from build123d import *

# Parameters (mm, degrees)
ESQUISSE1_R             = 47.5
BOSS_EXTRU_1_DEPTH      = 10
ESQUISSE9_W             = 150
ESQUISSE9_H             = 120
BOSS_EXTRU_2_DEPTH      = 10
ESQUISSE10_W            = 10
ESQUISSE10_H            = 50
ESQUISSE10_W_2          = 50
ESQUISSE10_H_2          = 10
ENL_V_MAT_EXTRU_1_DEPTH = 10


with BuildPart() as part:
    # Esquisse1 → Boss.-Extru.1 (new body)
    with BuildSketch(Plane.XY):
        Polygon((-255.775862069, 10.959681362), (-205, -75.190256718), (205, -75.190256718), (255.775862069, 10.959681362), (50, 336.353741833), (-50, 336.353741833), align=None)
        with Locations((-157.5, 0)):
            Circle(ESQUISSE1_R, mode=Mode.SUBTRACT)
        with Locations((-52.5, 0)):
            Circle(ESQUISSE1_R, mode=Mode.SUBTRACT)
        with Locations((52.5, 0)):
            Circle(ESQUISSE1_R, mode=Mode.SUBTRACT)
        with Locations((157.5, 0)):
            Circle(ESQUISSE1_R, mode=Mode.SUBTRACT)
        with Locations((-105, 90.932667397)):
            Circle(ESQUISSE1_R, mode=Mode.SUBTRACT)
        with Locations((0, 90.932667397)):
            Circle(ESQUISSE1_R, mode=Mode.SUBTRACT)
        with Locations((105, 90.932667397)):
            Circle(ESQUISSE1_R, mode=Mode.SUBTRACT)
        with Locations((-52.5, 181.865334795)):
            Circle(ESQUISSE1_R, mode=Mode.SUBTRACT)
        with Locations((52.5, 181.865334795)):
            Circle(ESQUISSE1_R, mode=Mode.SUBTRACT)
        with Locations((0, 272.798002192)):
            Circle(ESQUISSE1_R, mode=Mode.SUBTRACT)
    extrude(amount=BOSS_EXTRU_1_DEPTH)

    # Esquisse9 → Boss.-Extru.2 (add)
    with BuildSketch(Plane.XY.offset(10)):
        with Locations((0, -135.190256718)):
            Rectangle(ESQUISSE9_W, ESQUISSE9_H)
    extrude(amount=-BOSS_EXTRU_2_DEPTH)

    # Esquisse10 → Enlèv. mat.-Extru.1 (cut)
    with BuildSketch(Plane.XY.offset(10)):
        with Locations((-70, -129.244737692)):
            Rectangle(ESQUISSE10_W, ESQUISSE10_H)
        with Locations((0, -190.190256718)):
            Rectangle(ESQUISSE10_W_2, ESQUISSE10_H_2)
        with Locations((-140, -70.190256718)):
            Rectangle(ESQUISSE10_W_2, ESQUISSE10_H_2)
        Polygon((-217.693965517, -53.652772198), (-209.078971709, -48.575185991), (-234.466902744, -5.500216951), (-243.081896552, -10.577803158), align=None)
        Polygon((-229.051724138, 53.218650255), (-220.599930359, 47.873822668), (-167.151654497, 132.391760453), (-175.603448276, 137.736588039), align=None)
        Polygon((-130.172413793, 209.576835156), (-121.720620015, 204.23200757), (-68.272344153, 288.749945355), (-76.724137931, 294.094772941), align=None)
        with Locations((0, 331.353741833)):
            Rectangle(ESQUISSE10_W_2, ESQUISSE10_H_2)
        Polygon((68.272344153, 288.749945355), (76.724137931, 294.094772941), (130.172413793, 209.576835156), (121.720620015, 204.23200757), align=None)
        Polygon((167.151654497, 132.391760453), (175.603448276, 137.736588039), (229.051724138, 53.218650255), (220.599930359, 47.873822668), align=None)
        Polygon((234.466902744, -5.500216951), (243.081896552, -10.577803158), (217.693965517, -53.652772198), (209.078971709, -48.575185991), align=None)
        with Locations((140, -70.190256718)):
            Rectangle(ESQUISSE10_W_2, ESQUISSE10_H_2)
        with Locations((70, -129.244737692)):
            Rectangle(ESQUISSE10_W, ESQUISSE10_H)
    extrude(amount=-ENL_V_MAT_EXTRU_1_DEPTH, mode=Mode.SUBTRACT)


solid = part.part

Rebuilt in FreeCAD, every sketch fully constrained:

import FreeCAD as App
import Part
import Sketcher
Q = App.Units.Quantity


def add_polygon(sketch, points):
    """Adds a closed chain of lines whose ends are joined by coincident constraints."""
    first, n = sketch.GeometryCount, len(points)
    for a, b in zip(points, points[1:] + points[:1]):
        sketch.addGeometry(Part.LineSegment(App.Vector(*a, 0), App.Vector(*b, 0)), False)
    for i in range(n):
        sketch.addConstraint(Sketcher.Constraint("Coincident", first + i, 2, first + (i + 1) % n, 1))

doc = App.newDocument("Part")
params = doc.addObject("Spreadsheet::Sheet", "Params")
for row, (alias, value) in enumerate([
    ("sketch1_diameter", "95 mm"),
    ("sketch1_width", "410 mm"),
    ("sketch1_width2", "100 mm"),
    ("sketch1_length", "100 mm"),
    ("sketch1_length2", "385 mm"),
    ("pad1_length", "10 mm"),
    ("sketch2_width", "150 mm"),
    ("sketch2_height", "120 mm"),
    ("pad2_length", "10 mm"),
    ("sketch3_width", "10 mm"),
    ("sketch3_width2", "50 mm"),
    ("sketch3_length", "10 mm"),
    ("sketch3_length2", "50 mm"),
    ("sketch3_length3", "100 mm"),
    ("pocket1_length", "10 mm"),
], start=1):
    params.set(f"A{row}", alias)
    params.set(f"B{row}", "=" + value)
    params.setAlias(f"B{row}", alias)

body = doc.addObject("PartDesign::Body", "Body")

sketch1 = body.newObject("Sketcher::SketchObject", "Sketch")
sketch1.AttachmentSupport = (doc.getObject("XY_Plane"), [""])
sketch1.MapMode = "FlatFace"
add_polygon(sketch1, [(-256, 11), (-205, -75), (205, -75), (256, 11), (50, 336), (-50, 336)])
sketch1.addGeometry(Part.Circle(App.Vector(-158, 0, 0), App.Vector(0, 0, 1), 48), False)
sketch1.addGeometry(Part.Circle(App.Vector(-52, 0, 0), App.Vector(0, 0, 1), 48), False)
sketch1.addGeometry(Part.Circle(App.Vector(-105, 91, 0), App.Vector(0, 0, 1), 48), False)
sketch1.addGeometry(Part.Circle(App.Vector(52, 0, 0), App.Vector(0, 0, 1), 48), False)
sketch1.addGeometry(Part.Circle(App.Vector(158, 0, 0), App.Vector(0, 0, 1), 48), False)
sketch1.addGeometry(Part.Circle(App.Vector(0, 91, 0), App.Vector(0, 0, 1), 48), False)
sketch1.addGeometry(Part.Circle(App.Vector(105, 91, 0), App.Vector(0, 0, 1), 48), False)
sketch1.addGeometry(Part.Circle(App.Vector(-52, 182, 0), App.Vector(0, 0, 1), 48), False)
sketch1.addGeometry(Part.Circle(App.Vector(52, 182, 0), App.Vector(0, 0, 1), 48), False)
sketch1.addGeometry(Part.Circle(App.Vector(0, 273, 0), App.Vector(0, 0, 1), 48), False)
sketch1.addConstraint(Sketcher.Constraint("Horizontal", 1))
sketch1.addConstraint(Sketcher.Constraint("Horizontal", 4))
sketch1.addConstraint(Sketcher.Constraint("Equal", 6, 7))
sketch1.addConstraint(Sketcher.Constraint("Equal", 7, 8))
sketch1.addConstraint(Sketcher.Constraint("Equal", 8, 9))
sketch1.addConstraint(Sketcher.Constraint("Equal", 9, 10))
sketch1.addConstraint(Sketcher.Constraint("Equal", 10, 11))
sketch1.addConstraint(Sketcher.Constraint("Equal", 11, 12))
sketch1.addConstraint(Sketcher.Constraint("Equal", 12, 13))
sketch1.addConstraint(Sketcher.Constraint("Equal", 13, 14))
sketch1.addConstraint(Sketcher.Constraint("Equal", 14, 15))
sketch1.addConstraint(Sketcher.Constraint("Symmetric", 7, 3, 9, 3, -1, 1))
sketch1.addConstraint(Sketcher.Constraint("Symmetric", 6, 3, 10, 3, -1, 1))
sketch1.addConstraint(Sketcher.Constraint("Symmetric", 8, 3, 12, 3, -2))
sketch1.addConstraint(Sketcher.Constraint("Symmetric", 13, 3, 14, 3, -2))
sketch1.addConstraint(Sketcher.Constraint("Symmetric", 2, 2, 5, 2, -2))
sketch1.addConstraint(Sketcher.Constraint("PointOnObject", 6, 3, -1))
sketch1.addConstraint(Sketcher.Constraint("PointOnObject", 7, 3, -1))
sketch1.addConstraint(Sketcher.Constraint("PointOnObject", 11, 3, -2))
sketch1.addConstraint(Sketcher.Constraint("PointOnObject", 15, 3, -2))
sketch1.addConstraint(Sketcher.Constraint("Horizontal", 8, 3, 11, 3))
sketch1.addConstraint(Sketcher.Constraint("Vertical", 7, 3, 13, 3))
sketch1.addConstraint(Sketcher.Constraint("Equal", 0, 2))
sketch1.addConstraint(Sketcher.Constraint("Equal", 3, 5))
sketch1.addConstraint(Sketcher.Constraint("Diameter", 6, Q("95 mm")))
sketch1.addConstraint(Sketcher.Constraint("DistanceX", 1, 1, 1, 2, Q("410 mm")))
sketch1.addConstraint(Sketcher.Constraint("DistanceX", 4, 2, 4, 1, Q("100 mm")))
sketch1.addConstraint(Sketcher.Constraint("Distance", 0, Q("100 mm")))
sketch1.addConstraint(Sketcher.Constraint("Distance", 3, Q("385 mm")))
sketch1.addConstraint(Sketcher.Constraint("DistanceX", 8, 3, -1, 1, Q("105 mm")))
sketch1.addConstraint(Sketcher.Constraint("DistanceX", 6, 3, 7, 3, Q("105 mm")))
sketch1.addConstraint(Sketcher.Constraint("DistanceX", 7, 3, 9, 3, Q("105 mm")))
sketch1.addConstraint(Sketcher.Constraint("DistanceY", -1, 1, 2, 2, Q("10.959681 mm")))
sketch1.addConstraint(Sketcher.Constraint("DistanceY", -1, 1, 3, 2, Q("336.353742 mm")))
sketch1.addConstraint(Sketcher.Constraint("DistanceY", 15, 3, 3, 2, Q("63.55574 mm")))
sketch1.addConstraint(Sketcher.Constraint("DistanceY", -1, 1, 8, 3, Q("90.932667 mm")))
sketch1.addConstraint(Sketcher.Constraint("DistanceY", -1, 1, 13, 3, Q("181.865335 mm")))
sketch1.setExpression("Constraints[30]", "Params.sketch1_diameter")
sketch1.setExpression("Constraints[31]", "Params.sketch1_width")
sketch1.setExpression("Constraints[32]", "Params.sketch1_width2")
sketch1.setExpression("Constraints[33]", "Params.sketch1_length")
sketch1.setExpression("Constraints[34]", "Params.sketch1_length2")
pad1 = body.newObject("PartDesign::Pad", "Pad")
pad1.Profile = sketch1
pad1.setExpression("Length", "Params.pad1_length")

sketch2 = body.newObject("Sketcher::SketchObject", "Sketch001")
sketch2.AttachmentSupport = (doc.getObject("XY_Plane"), [""])
sketch2.MapMode = "FlatFace"
sketch2.AttachmentOffset = App.Placement(App.Vector(0, 0, 10), App.Rotation())
add_polygon(sketch2, [(-75, -75), (-75, -195), (75, -195), (75, -75)])
sketch2.addConstraint(Sketcher.Constraint("Vertical", 0))
sketch2.addConstraint(Sketcher.Constraint("Horizontal", 1))
sketch2.addConstraint(Sketcher.Constraint("Vertical", 2))
sketch2.addConstraint(Sketcher.Constraint("Horizontal", 3))
sketch2.addConstraint(Sketcher.Constraint("DistanceX", 1, 1, 1, 2, Q("150 mm")))
sketch2.addConstraint(Sketcher.Constraint("DistanceY", 0, 2, 0, 1, Q("120 mm")))
sketch2.addConstraint(Sketcher.Constraint("DistanceX", 0, 2, -1, 1, Q("75 mm")))
sketch2.addConstraint(Sketcher.Constraint("DistanceY", 0, 2, -1, 1, Q("195.190257 mm")))
sketch2.setExpression("Constraints[8]", "Params.sketch2_width")
sketch2.setExpression("Constraints[9]", "Params.sketch2_height")
pad2 = body.newObject("PartDesign::Pad", "Pad001")
pad2.Profile = sketch2
pad2.setExpression("Length", "Params.pad2_length")
pad2.Reversed = True

sketch3 = body.newObject("Sketcher::SketchObject", "Sketch002")
sketch3.AttachmentSupport = (doc.getObject("XY_Plane"), [""])
sketch3.MapMode = "FlatFace"
sketch3.AttachmentOffset = App.Placement(App.Vector(0, 0, 10), App.Rotation())
add_polygon(sketch3, [(-75, -104), (-75, -154), (-65, -154), (-65, -104)])
add_polygon(sketch3, [(-25, -185), (-25, -195), (25, -195), (25, -185)])
add_polygon(sketch3, [(-165, -65), (-165, -75), (-115, -75), (-115, -65)])
add_polygon(sketch3, [(-218, -54), (-209, -49), (-234, -6), (-243, -11)])
add_polygon(sketch3, [(-229, 53), (-221, 48), (-167, 132), (-176, 138)])
add_polygon(sketch3, [(-130, 210), (-122, 204), (-68, 289), (-77, 294)])
add_polygon(sketch3, [(-25, 336), (-25, 326), (25, 326), (25, 336)])
add_polygon(sketch3, [(77, 294), (68, 289), (122, 204), (130, 210)])
add_polygon(sketch3, [(176, 138), (167, 132), (221, 48), (229, 53)])
add_polygon(sketch3, [(243, -11), (234, -6), (209, -49), (218, -54)])
add_polygon(sketch3, [(115, -65), (115, -75), (165, -75), (165, -65)])
add_polygon(sketch3, [(65, -104), (65, -154), (75, -154), (75, -104)])
sketch3.addConstraint(Sketcher.Constraint("Vertical", 0))
sketch3.addConstraint(Sketcher.Constraint("Horizontal", 1))
sketch3.addConstraint(Sketcher.Constraint("Vertical", 2))
sketch3.addConstraint(Sketcher.Constraint("Horizontal", 3))
sketch3.addConstraint(Sketcher.Constraint("Vertical", 4))
sketch3.addConstraint(Sketcher.Constraint("Horizontal", 5))
sketch3.addConstraint(Sketcher.Constraint("Vertical", 6))
sketch3.addConstraint(Sketcher.Constraint("Horizontal", 7))
sketch3.addConstraint(Sketcher.Constraint("Vertical", 8))
sketch3.addConstraint(Sketcher.Constraint("Horizontal", 9))
sketch3.addConstraint(Sketcher.Constraint("Vertical", 10))
sketch3.addConstraint(Sketcher.Constraint("Horizontal", 11))
sketch3.addConstraint(Sketcher.Constraint("Vertical", 24))
sketch3.addConstraint(Sketcher.Constraint("Horizontal", 25))
sketch3.addConstraint(Sketcher.Constraint("Vertical", 26))
sketch3.addConstraint(Sketcher.Constraint("Horizontal", 27))
sketch3.addConstraint(Sketcher.Constraint("Vertical", 40))
sketch3.addConstraint(Sketcher.Constraint("Horizontal", 41))
sketch3.addConstraint(Sketcher.Constraint("Vertical", 42))
sketch3.addConstraint(Sketcher.Constraint("Horizontal", 43))
sketch3.addConstraint(Sketcher.Constraint("Vertical", 44))
sketch3.addConstraint(Sketcher.Constraint("Horizontal", 45))
sketch3.addConstraint(Sketcher.Constraint("Vertical", 46))
sketch3.addConstraint(Sketcher.Constraint("Horizontal", 47))
sketch3.addConstraint(Sketcher.Constraint("Symmetric", 21, 2, 28, 2, -2))
sketch3.addConstraint(Sketcher.Constraint("Symmetric", 20, 2, 29, 2, -2))
sketch3.addConstraint(Sketcher.Constraint("Symmetric", 23, 2, 30, 2, -2))
sketch3.addConstraint(Sketcher.Constraint("Symmetric", 22, 2, 31, 2, -2))
sketch3.addConstraint(Sketcher.Constraint("Symmetric", 17, 2, 32, 2, -2))
sketch3.addConstraint(Sketcher.Constraint("Symmetric", 16, 2, 33, 2, -2))
sketch3.addConstraint(Sketcher.Constraint("Symmetric", 19, 2, 34, 2, -2))
sketch3.addConstraint(Sketcher.Constraint("Symmetric", 18, 2, 35, 2, -2))
sketch3.addConstraint(Sketcher.Constraint("Symmetric", 13, 2, 36, 2, -2))
sketch3.addConstraint(Sketcher.Constraint("Symmetric", 12, 2, 37, 2, -2))
sketch3.addConstraint(Sketcher.Constraint("Symmetric", 15, 2, 38, 2, -2))
sketch3.addConstraint(Sketcher.Constraint("Symmetric", 14, 2, 39, 2, -2))
sketch3.addConstraint(Sketcher.Constraint("Symmetric", 9, 2, 40, 2, -2))
sketch3.addConstraint(Sketcher.Constraint("Symmetric", 11, 2, 42, 2, -2))
sketch3.addConstraint(Sketcher.Constraint("Symmetric", 1, 2, 44, 2, -2))
sketch3.addConstraint(Sketcher.Constraint("Symmetric", 3, 2, 46, 2, -2))
sketch3.addConstraint(Sketcher.Constraint("Perpendicular", 12, 13))
sketch3.addConstraint(Sketcher.Constraint("Perpendicular", 13, 14))
sketch3.addConstraint(Sketcher.Constraint("Perpendicular", 14, 15))
sketch3.addConstraint(Sketcher.Constraint("Perpendicular", 16, 17))
sketch3.addConstraint(Sketcher.Constraint("Perpendicular", 17, 18))
sketch3.addConstraint(Sketcher.Constraint("Perpendicular", 18, 19))
sketch3.addConstraint(Sketcher.Constraint("Perpendicular", 19, 20))
sketch3.addConstraint(Sketcher.Constraint("Perpendicular", 20, 21))
sketch3.addConstraint(Sketcher.Constraint("Perpendicular", 21, 22))
sketch3.addConstraint(Sketcher.Constraint("Perpendicular", 22, 23))
sketch3.addConstraint(Sketcher.Constraint("Vertical", 7, 2, 24, 2))
sketch3.addConstraint(Sketcher.Constraint("Vertical", 6, 2, 25, 2))
sketch3.addConstraint(Sketcher.Constraint("Equal", 7, 9))
sketch3.addConstraint(Sketcher.Constraint("Equal", 43, 0))
sketch3.addConstraint(Sketcher.Constraint("Equal", 47, 4))
sketch3.addConstraint(Sketcher.Constraint("Equal", 6, 8))
sketch3.addConstraint(Sketcher.Constraint("Equal", 10, 24))
sketch3.addConstraint(Sketcher.Constraint("Equal", 14, 16))
sketch3.addConstraint(Sketcher.Constraint("Equal", 18, 20))
sketch3.addConstraint(Sketcher.Constraint("Equal", 19, 21))
sketch3.addConstraint(Sketcher.Constraint("DistanceX", 1, 1, 1, 2, Q("10 mm")))
sketch3.addConstraint(Sketcher.Constraint("DistanceX", 5, 1, 5, 2, Q("50 mm")))
sketch3.addConstraint(Sketcher.Constraint("Distance", 12, Q("10 mm")))
sketch3.addConstraint(Sketcher.Constraint("Distance", 13, Q("50 mm")))
sketch3.addConstraint(Sketcher.Constraint("Distance", 17, Q("100 mm")))
sketch3.addConstraint(Sketcher.Constraint("DistanceX", 0, 2, -1, 1, Q("75 mm")))
sketch3.addConstraint(Sketcher.Constraint("DistanceX", 4, 2, -1, 1, Q("25 mm")))
sketch3.addConstraint(Sketcher.Constraint("DistanceX", 8, 2, -1, 1, Q("165 mm")))
sketch3.addConstraint(Sketcher.Constraint("DistanceY", 7, 2, 8, 2, Q("110 mm")))
sketch3.addConstraint(Sketcher.Constraint("DistanceX", 12, 2, -1, 1, Q("209.078972 mm")))
sketch3.addConstraint(Sketcher.Constraint("DistanceX", 16, 2, -1, 1, Q("220.59993 mm")))
sketch3.addConstraint(Sketcher.Constraint("DistanceY", -1, 1, 17, 2, Q("132.39176 mm")))
sketch3.addConstraint(Sketcher.Constraint("DistanceX", 18, 2, -1, 1, Q("175.603448 mm")))
sketch3.addConstraint(Sketcher.Constraint("DistanceX", 20, 2, -1, 1, Q("121.72062 mm")))
sketch3.addConstraint(Sketcher.Constraint("DistanceY", -1, 1, 24, 2, Q("326.353742 mm")))
sketch3.addConstraint(Sketcher.Constraint("DistanceY", 4, 2, 1, 2, Q("40.945519 mm")))
sketch3.addConstraint(Sketcher.Constraint("DistanceY", 11, 2, 12, 2, Q("16.615071 mm")))
sketch3.addConstraint(Sketcher.Constraint("DistanceX", 13, 2, 12, 2, Q("25.387931 mm")))
sketch3.addConstraint(Sketcher.Constraint("DistanceY", 13, 2, 16, 2, Q("53.37404 mm")))
sketch3.addConstraint(Sketcher.Constraint("DistanceY", 18, 2, 20, 2, Q("66.49542 mm")))
sketch3.setExpression("Constraints[108]", "Params.sketch3_width")
sketch3.setExpression("Constraints[109]", "Params.sketch3_width2")
sketch3.setExpression("Constraints[110]", "Params.sketch3_length")
sketch3.setExpression("Constraints[111]", "Params.sketch3_length2")
sketch3.setExpression("Constraints[112]", "Params.sketch3_length3")
pocket1 = body.newObject("PartDesign::Pocket", "Pocket")
pocket1.Profile = sketch3
pocket1.setExpression("Length", "Params.pocket1_length")

doc.recompute()
